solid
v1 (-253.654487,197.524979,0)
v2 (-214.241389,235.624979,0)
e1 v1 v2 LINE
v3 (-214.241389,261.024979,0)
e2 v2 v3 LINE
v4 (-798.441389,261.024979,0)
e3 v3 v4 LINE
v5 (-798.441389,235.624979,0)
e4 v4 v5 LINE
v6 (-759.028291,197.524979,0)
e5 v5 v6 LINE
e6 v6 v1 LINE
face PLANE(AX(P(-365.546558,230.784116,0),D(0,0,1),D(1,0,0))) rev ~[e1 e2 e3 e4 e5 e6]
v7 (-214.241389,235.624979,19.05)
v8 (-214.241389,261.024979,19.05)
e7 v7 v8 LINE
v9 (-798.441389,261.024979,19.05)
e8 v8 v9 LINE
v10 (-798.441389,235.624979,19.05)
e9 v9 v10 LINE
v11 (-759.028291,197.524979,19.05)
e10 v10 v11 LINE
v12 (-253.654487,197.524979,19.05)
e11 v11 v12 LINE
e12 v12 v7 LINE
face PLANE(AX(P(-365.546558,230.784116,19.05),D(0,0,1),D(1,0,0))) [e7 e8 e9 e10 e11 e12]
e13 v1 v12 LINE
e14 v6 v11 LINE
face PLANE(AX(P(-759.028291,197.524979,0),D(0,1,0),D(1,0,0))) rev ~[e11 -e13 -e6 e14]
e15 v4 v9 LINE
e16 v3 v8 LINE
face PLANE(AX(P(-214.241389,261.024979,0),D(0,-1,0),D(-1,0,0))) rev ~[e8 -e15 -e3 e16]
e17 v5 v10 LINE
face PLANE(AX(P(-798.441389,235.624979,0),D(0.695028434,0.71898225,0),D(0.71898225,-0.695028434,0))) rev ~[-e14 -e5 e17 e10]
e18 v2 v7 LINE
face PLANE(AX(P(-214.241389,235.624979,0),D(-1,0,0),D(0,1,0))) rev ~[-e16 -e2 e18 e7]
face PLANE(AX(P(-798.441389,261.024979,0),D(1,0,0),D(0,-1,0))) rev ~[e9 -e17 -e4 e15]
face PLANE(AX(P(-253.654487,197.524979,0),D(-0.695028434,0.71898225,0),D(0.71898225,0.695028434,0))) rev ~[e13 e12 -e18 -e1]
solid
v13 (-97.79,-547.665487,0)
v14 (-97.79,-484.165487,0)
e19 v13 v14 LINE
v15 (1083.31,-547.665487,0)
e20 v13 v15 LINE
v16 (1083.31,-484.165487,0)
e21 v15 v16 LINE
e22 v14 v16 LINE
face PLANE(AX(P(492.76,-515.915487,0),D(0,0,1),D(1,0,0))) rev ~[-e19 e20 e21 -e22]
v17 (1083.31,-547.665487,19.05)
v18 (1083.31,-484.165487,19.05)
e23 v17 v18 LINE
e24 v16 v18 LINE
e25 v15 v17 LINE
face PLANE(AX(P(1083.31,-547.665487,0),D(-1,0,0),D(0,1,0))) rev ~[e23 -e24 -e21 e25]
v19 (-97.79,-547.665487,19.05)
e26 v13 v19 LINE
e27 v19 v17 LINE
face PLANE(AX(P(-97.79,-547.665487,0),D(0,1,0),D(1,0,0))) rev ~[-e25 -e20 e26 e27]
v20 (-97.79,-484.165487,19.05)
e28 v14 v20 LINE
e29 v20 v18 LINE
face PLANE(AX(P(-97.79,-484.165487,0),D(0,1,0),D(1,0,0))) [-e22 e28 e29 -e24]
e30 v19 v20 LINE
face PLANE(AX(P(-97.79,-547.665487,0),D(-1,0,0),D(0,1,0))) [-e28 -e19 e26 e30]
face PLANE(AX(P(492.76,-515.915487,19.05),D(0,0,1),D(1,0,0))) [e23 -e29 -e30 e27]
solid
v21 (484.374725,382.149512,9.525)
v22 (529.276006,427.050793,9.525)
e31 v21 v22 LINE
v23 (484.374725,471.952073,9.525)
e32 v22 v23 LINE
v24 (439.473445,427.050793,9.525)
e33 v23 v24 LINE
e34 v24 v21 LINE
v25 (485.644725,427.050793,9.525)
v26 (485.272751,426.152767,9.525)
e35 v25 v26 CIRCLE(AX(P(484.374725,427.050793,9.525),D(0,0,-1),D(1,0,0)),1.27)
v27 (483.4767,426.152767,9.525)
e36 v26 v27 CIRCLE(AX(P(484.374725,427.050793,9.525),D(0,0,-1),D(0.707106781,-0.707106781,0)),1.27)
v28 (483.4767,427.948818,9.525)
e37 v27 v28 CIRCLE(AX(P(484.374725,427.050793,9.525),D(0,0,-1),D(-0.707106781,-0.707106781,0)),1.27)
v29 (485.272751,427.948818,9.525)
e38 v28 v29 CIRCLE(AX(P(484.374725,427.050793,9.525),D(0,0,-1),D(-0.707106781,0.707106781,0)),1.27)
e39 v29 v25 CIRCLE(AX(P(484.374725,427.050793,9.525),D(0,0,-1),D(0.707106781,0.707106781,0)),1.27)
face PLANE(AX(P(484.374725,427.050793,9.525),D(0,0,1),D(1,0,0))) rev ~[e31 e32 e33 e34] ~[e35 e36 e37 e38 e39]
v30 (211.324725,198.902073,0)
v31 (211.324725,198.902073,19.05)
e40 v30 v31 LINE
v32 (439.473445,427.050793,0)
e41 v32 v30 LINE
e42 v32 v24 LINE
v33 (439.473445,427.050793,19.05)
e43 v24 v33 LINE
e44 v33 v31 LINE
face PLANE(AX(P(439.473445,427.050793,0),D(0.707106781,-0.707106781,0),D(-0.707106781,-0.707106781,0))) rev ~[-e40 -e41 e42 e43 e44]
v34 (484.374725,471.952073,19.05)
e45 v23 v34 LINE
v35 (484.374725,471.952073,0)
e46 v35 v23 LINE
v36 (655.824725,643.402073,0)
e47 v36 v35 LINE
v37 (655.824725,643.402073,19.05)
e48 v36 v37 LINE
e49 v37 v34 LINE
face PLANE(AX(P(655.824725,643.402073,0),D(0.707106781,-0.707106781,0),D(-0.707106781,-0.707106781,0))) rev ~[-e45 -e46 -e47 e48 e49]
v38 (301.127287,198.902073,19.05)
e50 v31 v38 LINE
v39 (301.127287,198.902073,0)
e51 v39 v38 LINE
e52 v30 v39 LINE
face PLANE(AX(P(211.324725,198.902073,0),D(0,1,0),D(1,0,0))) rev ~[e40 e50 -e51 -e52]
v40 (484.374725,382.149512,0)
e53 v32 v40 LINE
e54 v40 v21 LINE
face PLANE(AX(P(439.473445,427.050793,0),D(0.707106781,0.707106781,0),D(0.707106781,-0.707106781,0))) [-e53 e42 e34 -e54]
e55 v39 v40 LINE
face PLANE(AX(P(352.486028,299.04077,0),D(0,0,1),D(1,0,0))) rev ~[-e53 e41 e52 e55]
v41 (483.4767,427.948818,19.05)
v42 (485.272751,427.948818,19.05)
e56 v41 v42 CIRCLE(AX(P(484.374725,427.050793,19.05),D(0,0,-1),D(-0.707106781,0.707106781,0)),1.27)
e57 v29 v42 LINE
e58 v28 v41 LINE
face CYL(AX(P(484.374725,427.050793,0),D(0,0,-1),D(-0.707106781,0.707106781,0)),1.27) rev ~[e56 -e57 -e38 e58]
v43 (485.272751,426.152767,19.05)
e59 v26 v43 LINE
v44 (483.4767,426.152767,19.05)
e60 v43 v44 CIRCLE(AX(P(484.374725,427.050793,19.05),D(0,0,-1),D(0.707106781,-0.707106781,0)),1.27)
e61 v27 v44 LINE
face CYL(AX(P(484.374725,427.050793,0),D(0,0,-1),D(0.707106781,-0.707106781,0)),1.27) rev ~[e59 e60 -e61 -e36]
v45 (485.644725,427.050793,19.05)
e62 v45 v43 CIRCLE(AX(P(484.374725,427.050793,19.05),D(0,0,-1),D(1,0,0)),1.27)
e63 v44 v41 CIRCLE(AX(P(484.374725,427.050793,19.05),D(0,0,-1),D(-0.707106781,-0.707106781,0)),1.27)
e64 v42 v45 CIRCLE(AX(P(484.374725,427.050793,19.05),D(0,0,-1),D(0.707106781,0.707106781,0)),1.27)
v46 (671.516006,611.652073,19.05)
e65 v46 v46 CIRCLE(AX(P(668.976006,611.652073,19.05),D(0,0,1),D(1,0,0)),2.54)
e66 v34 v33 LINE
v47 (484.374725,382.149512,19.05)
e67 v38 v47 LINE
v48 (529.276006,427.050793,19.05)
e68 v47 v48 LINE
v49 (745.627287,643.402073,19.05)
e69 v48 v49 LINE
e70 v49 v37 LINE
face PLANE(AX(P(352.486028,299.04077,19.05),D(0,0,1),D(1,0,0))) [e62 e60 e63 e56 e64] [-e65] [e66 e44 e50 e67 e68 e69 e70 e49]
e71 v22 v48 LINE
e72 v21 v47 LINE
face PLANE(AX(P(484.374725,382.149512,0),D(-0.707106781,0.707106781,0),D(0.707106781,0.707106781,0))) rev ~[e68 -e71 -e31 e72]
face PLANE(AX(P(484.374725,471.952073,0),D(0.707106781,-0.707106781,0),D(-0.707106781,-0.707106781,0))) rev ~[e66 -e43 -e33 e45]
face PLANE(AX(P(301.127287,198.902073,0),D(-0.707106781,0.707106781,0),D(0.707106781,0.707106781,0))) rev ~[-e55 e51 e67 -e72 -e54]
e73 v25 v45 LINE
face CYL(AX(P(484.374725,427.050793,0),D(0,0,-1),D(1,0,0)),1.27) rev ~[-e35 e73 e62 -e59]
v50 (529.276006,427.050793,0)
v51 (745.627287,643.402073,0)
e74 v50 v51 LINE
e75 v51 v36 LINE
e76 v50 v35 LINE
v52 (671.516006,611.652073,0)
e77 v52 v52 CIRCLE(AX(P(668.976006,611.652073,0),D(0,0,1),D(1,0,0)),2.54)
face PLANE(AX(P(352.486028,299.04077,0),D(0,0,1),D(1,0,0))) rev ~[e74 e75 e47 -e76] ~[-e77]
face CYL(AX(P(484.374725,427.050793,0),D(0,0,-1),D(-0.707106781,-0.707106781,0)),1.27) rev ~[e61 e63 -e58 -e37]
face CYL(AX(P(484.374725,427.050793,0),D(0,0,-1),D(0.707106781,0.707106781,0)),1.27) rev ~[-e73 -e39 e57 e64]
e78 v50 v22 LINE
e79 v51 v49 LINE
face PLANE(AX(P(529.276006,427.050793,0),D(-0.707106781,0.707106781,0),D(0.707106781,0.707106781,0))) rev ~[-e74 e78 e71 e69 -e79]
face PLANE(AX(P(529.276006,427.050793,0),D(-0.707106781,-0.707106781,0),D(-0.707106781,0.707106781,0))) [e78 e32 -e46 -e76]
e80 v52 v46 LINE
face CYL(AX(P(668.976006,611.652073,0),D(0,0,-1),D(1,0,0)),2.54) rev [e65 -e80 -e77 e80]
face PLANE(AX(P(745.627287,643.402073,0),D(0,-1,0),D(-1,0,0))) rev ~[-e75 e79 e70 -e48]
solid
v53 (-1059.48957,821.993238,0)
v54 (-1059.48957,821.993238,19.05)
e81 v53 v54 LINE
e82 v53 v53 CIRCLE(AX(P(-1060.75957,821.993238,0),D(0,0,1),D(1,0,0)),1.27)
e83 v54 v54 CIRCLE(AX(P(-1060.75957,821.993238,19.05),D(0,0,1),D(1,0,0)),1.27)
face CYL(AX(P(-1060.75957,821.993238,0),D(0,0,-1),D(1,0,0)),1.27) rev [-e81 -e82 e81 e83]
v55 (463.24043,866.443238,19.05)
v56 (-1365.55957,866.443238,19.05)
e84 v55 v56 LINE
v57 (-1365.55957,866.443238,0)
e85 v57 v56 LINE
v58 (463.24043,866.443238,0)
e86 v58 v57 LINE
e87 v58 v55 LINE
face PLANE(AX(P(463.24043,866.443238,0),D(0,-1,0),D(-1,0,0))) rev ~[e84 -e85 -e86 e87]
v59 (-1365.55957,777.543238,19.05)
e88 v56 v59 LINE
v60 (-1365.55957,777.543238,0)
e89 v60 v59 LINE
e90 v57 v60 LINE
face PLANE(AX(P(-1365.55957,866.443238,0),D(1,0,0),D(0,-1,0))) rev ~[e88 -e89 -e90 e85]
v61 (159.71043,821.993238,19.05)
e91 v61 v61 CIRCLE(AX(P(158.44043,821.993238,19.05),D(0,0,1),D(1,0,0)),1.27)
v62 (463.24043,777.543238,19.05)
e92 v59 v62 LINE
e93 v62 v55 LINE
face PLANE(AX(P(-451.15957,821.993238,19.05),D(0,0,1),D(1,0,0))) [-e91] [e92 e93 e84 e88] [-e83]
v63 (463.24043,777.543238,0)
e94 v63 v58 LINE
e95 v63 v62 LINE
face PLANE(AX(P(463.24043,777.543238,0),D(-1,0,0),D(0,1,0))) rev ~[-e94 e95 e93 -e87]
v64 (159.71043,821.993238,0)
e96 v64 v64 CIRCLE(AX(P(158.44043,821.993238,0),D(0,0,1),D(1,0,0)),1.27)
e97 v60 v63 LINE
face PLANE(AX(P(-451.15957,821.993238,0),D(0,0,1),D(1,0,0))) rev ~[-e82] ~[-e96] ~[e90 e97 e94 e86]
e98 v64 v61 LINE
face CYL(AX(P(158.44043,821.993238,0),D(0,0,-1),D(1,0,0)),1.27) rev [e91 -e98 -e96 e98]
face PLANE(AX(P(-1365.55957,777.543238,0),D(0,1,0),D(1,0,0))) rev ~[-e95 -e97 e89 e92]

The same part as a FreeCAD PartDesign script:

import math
import FreeCAD as App
import Part
import Sketcher
from FreeCAD import Vector
Q = App.Units.Quantity


def add_polygon(sketch, points):
    """Adds a closed chain of lines whose ends are joined by coincident constraints."""
    first, n = sketch.GeometryCount, len(points)
    for a, b in zip(points, points[1:] + points[:1]):
        sketch.addGeometry(Part.LineSegment(App.Vector(*a, 0), App.Vector(*b, 0)), False)
    for i in range(n):
        sketch.addConstraint(Sketcher.Constraint("Coincident", first + i, 2, first + (i + 1) % n, 1))

doc = App.newDocument("Part")
body = doc.addObject("PartDesign::Body", "Body")

sketch1 = body.newObject("Sketcher::SketchObject", "Sketch")
sketch1.AttachmentSupport = (doc.getObject("XY_Plane"), [""])
sketch1.MapMode = "FlatFace"
add_polygon(sketch1, [(463.2, 866.4), (-1365.6, 866.4), (-1365.6, 777.5), (463.2, 777.5)])
sketch1.addGeometry(Part.Circle(Vector(-1060.8, 822, 0), Vector(0, 0, 1), 1.3), False)
sketch1.addGeometry(Part.Circle(Vector(158.4, 822, 0), Vector(0, 0, 1), 1.3), False)
sketch1.addConstraint([
    Sketcher.Constraint("Horizontal", 0),
    Sketcher.Constraint("Vertical", 1),
    Sketcher.Constraint("Horizontal", 2),
    Sketcher.Constraint("Vertical", 3),
    Sketcher.Constraint("Equal", 4, 5),
    Sketcher.Constraint("Horizontal", 4, 3, 5, 3),
    Sketcher.Constraint("Diameter", 4, Q("0.1 in")),
    Sketcher.Constraint("DistanceX", 0, 2, 0, 1, Q("72 in")),
    Sketcher.Constraint("DistanceY", 1, 2, 1, 1, Q("3.5 in")),
    Sketcher.Constraint("DistanceX", 4, 3, 5, 3, Q("48 in")),
    Sketcher.Constraint("DistanceX", 0, 2, 4, 3, Q("12 in")),
    Sketcher.Constraint("DistanceY", 4, 3, 0, 2, Q("1.75 in")),
    Sketcher.Constraint("DistanceX", 4, 3, -1, 1, Q("1060.75957 mm")),
    Sketcher.Constraint("DistanceY", -1, 1, 4, 3, Q("821.993238 mm")),
])
pad1 = body.newObject("PartDesign::Pad", "Pad")
pad1.Profile = sketch1
pad1.Length = Q("0.75 in")
body2 = doc.addObject("PartDesign::Body", "Body001")

sketch2 = body2.newObject("Sketcher::SketchObject", "Sketch001")
sketch2.AttachmentSupport = (doc.getObject("XY_Plane001"), [""])
sketch2.MapMode = "FlatFace"
add_polygon(sketch2, [(-214, 261), (-798, 261), (-798, 236), (-759, 198), (-254, 198), (-214, 236)])
sketch2.addConstraint([
    Sketcher.Constraint("Horizontal", 0),
    Sketcher.Constraint("Vertical", 1),
    Sketcher.Constraint("Horizontal", 3),
    Sketcher.Constraint("Vertical", 5),
    Sketcher.Constraint("Horizontal", 1, 2, 4, 2),
    Sketcher.Constraint("Equal", 2, 4),
    Sketcher.Constraint("DistanceX", 0, 2, 0, 1, Q("23 in")),
    Sketcher.Constraint("DistanceY", 1, 2, 1, 1, Q("1 in")),
    Sketcher.Constraint("DistanceY", 2, 2, 1, 2, Q("1.5 in")),
    Sketcher.Constraint("Distance", 2, Q("54.817901 mm")),
    Sketcher.Constraint("DistanceX", 0, 2, -1, 1, Q("798.441389 mm")),
    Sketcher.Constraint("DistanceY", -1, 1, 0, 2, Q("261.024979 mm")),
])
pad2 = body2.newObject("PartDesign::Pad", "Pad001")
pad2.Profile = sketch2
pad2.Length = Q("0.75 in")
body3 = doc.addObject("PartDesign::Body", "Body002")

sketch3 = body3.newObject("Sketcher::SketchObject", "Sketch002")
sketch3.AttachmentSupport = (doc.getObject("XY_Plane002"), [""])
sketch3.MapMode = "FlatFace"
add_polygon(sketch3, [(-98, -484), (-98, -548), (1083, -548), (1083, -484)])
sketch3.addConstraint([
    Sketcher.Constraint("Vertical", 0),
    Sketcher.Constraint("Horizontal", 1),
    Sketcher.Constraint("Vertical", 2),
    Sketcher.Constraint("Horizontal", 3),
    Sketcher.Constraint("DistanceX", 1, 1, 1, 2, Q("46.5 in")),
    Sketcher.Constraint("DistanceY", 0, 2, 0, 1, Q("2.5 in")),
    Sketcher.Constraint("DistanceX", 0, 2, -1, 1, Q("3.85 in")),
    Sketcher.Constraint("DistanceY", 0, 2, -1, 1, Q("547.665487 mm")),
])
pad3 = body3.newObject("PartDesign::Pad", "Pad002")
pad3.Profile = sketch3
pad3.Length = Q("0.75 in")
body4 = doc.addObject("PartDesign::Body", "Body003")

sketch4 = body4.newObject("Sketcher::SketchObject", "Sketch003")
sketch4.AttachmentSupport = (doc.getObject("XY_Plane003"), [""])
sketch4.MapMode = "FlatFace"
add_polygon(sketch4, [(439.5, 427.1), (211.3, 198.9), (301.1, 198.9), (484.4, 382.1), (529.3, 427.1), (745.6, 643.4), (655.8, 643.4), (484.4, 472)])
sketch4.addGeometry(Part.ArcOfCircle(Part.Circle(Vector(484.4, 427.1, 0), Vector(0, 0, 1), 1.3), math.radians(45), math.radians(135)), False)
sketch4.addGeometry(Part.ArcOfCircle(Part.Circle(Vector(484.4, 427.1, 0), Vector(0, 0, 1), 1.3), math.radians(0), math.radians(45)), False)
sketch4.addGeometry(Part.ArcOfCircle(Part.Circle(Vector(484.4, 427.1, 0), Vector(0, 0, 1), 1.3), math.radians(-45), math.radians(0)), False)
sketch4.addGeometry(Part.ArcOfCircle(Part.Circle(Vector(484.4, 427.1, 0), Vector(0, 0, 1), 1.3), math.radians(-135), math.radians(-45)), False)
sketch4.addGeometry(Part.ArcOfCircle(Part.Circle(Vector(484.4, 427.1, 0), Vector(0, 0, 1), 1.3), math.radians(135), math.radians(225)), False)
sketch4.addGeometry(Part.Circle(Vector(669, 611.7, 0), Vector(0, 0, 1), 2.5), False)
sketch4.addConstraint([
    Sketcher.Constraint("Tangent", 8, 1, 9, 2),
    Sketcher.Constraint("Tangent", 9, 1, 10, 2),
    Sketcher.Constraint("Tangent", 10, 1, 11, 2),
    Sketcher.Constraint("Tangent", 11, 1, 12, 2),
    Sketcher.Constraint("Tangent", 12, 1, 8, 2),
    Sketcher.Constraint("Horizontal", 1),
    Sketcher.Constraint("Horizontal", 5),
    Sketcher.Constraint("Coincident", 10, 3, 8, 3),
    Sketcher.Constraint("Parallel", 0, 2),
    Sketcher.Constraint("Parallel", 2, 3),
    Sketcher.Constraint("Parallel", 3, 4),
    Sketcher.Constraint("Parallel", 4, 6),
    Sketcher.Constraint("Parallel", 6, 7),
    Sketcher.Constraint("Horizontal", 12, 3, 3, 2),
    Sketcher.Constraint("Horizontal", 3, 2, 7, 2),
    Sketcher.Constraint("Horizontal", 7, 2, 9, 1),
    Sketcher.Constraint("Horizontal", 10, 1, 11, 1),
    Sketcher.Constraint("Horizontal", 8, 1, 12, 1),
    Sketcher.Constraint("Vertical", 12, 3, 2, 2),
    Sketcher.Constraint("Vertical", 2, 2, 6, 2),
    Sketcher.Constraint("Vertical", 8, 1, 10, 1),
    Sketcher.Constraint("Equal", 3, 7),
    Sketcher.Constraint("Diameter", 13, Q("0.2 in")),
    Sketcher.Constraint("Radius", 8, Q("0.05 in")),
    Sketcher.Constraint("Angle", 0, Q("-135 deg")),
    Sketcher.Constraint("Distance", 3, Q("2.5 in")),
    Sketcher.Constraint("DistanceX", 0, 2, 12, 3, Q("10.75 in")),
    Sketcher.Constraint("DistanceY", 13, 3, 4, 2, Q("1.25 in")),
    Sketcher.Constraint("DistanceX", 8, 3, 5, 2, Q("6.75 in")),
    Sketcher.Constraint("DistanceX", -1, 1, 11, 1, Q("483.4767 mm")),
    Sketcher.Constraint("DistanceX", -1, 1, 8, 1, Q("485.272751 mm")),
    Sketcher.Constraint("DistanceY", -1, 1, 8, 1, Q("427.948818 mm")),
    Sketcher.Constraint("DistanceX", 8, 3, 13, 3, Q("184.601281 mm")),
])
pad4 = body4.newObject("PartDesign::Pad", "Pad003")
pad4.Profile = sketch4
pad4.Length = Q("0.75 in")

sketch5 = body4.newObject("Sketcher::SketchObject", "Sketch004")
sketch5.AttachmentSupport = (doc.getObject("XY_Plane003"), [""])
sketch5.MapMode = "FlatFace"
add_polygon(sketch5, [(529.3, 427.1), (484.4, 472), (439.5, 427.1), (484.4, 382.1)])
sketch5.addGeometry(Part.ArcOfCircle(Part.Circle(Vector(484.4, 427.1, 0), Vector(0, 0, 1), 1.3), math.radians(45), math.radians(135)), False)
sketch5.addGeometry(Part.ArcOfCircle(Part.Circle(Vector(484.4, 427.1, 0), Vector(0, 0, 1), 1.3), math.radians(0), math.radians(45)), False)
sketch5.addGeometry(Part.ArcOfCircle(Part.Circle(Vector(484.4, 427.1, 0), Vector(0, 0, 1), 1.3), math.radians(-45), math.radians(0)), False)
sketch5.addGeometry(Part.ArcOfCircle(Part.Circle(Vector(484.4, 427.1, 0), Vector(0, 0, 1), 1.3), math.radians(-135), math.radians(-45)), False)
sketch5.addGeometry(Part.ArcOfCircle(Part.Circle(Vector(484.4, 427.1, 0), Vector(0, 0, 1), 1.3), math.radians(135), math.radians(225)), False)
sketch5.addConstraint([
    Sketcher.Constraint("Tangent", 4, 1, 5, 2),
    Sketcher.Constraint("Tangent", 5, 1, 6, 2),
    Sketcher.Constraint("Tangent", 6, 1, 7, 2),
    Sketcher.Constraint("Tangent", 7, 1, 8, 2),
    Sketcher.Constraint("Tangent", 8, 1, 4, 2),
    Sketcher.Constraint("Coincident", 6, 3, 4, 3),
    Sketcher.Constraint("Perpendicular", 0, 1),
    Sketcher.Constraint("Perpendicular", 1, 2),
    Sketcher.Constraint("Perpendicular", 2, 3),
    Sketcher.Constraint("Horizontal", 8, 3, 1, 2),
    Sketcher.Constraint("Horizontal", 1, 2, 3, 2),
    Sketcher.Constraint("Horizontal", 3, 2, 5, 1),
    Sketcher.Constraint("Horizontal", 6, 1, 7, 1),
    Sketcher.Constraint("Horizontal", 4, 1, 8, 1),
    Sketcher.Constraint("Vertical", 8, 3, 0, 2),
    Sketcher.Constraint("Vertical", 0, 2, 2, 2),
    Sketcher.Constraint("Vertical", 4, 1, 6, 1),
    Sketcher.Constraint("Radius", 4, Q("0.05 in")),
    Sketcher.Constraint("Distance", 0, Q("2.5 in")),
    Sketcher.Constraint("DistanceX", -1, 1, 7, 1, Q("483.4767 mm")),
    Sketcher.Constraint("DistanceX", -1, 1, 4, 1, Q("485.272751 mm")),
    Sketcher.Constraint("DistanceY", -1, 1, 4, 1, Q("427.948818 mm")),
])
pocket1 = body4.newObject("PartDesign::Pocket", "Pocket")
pocket1.Profile = sketch5
pocket1.Length = Q("0.375 in")
pocket1.Reversed = True

doc.recompute()
